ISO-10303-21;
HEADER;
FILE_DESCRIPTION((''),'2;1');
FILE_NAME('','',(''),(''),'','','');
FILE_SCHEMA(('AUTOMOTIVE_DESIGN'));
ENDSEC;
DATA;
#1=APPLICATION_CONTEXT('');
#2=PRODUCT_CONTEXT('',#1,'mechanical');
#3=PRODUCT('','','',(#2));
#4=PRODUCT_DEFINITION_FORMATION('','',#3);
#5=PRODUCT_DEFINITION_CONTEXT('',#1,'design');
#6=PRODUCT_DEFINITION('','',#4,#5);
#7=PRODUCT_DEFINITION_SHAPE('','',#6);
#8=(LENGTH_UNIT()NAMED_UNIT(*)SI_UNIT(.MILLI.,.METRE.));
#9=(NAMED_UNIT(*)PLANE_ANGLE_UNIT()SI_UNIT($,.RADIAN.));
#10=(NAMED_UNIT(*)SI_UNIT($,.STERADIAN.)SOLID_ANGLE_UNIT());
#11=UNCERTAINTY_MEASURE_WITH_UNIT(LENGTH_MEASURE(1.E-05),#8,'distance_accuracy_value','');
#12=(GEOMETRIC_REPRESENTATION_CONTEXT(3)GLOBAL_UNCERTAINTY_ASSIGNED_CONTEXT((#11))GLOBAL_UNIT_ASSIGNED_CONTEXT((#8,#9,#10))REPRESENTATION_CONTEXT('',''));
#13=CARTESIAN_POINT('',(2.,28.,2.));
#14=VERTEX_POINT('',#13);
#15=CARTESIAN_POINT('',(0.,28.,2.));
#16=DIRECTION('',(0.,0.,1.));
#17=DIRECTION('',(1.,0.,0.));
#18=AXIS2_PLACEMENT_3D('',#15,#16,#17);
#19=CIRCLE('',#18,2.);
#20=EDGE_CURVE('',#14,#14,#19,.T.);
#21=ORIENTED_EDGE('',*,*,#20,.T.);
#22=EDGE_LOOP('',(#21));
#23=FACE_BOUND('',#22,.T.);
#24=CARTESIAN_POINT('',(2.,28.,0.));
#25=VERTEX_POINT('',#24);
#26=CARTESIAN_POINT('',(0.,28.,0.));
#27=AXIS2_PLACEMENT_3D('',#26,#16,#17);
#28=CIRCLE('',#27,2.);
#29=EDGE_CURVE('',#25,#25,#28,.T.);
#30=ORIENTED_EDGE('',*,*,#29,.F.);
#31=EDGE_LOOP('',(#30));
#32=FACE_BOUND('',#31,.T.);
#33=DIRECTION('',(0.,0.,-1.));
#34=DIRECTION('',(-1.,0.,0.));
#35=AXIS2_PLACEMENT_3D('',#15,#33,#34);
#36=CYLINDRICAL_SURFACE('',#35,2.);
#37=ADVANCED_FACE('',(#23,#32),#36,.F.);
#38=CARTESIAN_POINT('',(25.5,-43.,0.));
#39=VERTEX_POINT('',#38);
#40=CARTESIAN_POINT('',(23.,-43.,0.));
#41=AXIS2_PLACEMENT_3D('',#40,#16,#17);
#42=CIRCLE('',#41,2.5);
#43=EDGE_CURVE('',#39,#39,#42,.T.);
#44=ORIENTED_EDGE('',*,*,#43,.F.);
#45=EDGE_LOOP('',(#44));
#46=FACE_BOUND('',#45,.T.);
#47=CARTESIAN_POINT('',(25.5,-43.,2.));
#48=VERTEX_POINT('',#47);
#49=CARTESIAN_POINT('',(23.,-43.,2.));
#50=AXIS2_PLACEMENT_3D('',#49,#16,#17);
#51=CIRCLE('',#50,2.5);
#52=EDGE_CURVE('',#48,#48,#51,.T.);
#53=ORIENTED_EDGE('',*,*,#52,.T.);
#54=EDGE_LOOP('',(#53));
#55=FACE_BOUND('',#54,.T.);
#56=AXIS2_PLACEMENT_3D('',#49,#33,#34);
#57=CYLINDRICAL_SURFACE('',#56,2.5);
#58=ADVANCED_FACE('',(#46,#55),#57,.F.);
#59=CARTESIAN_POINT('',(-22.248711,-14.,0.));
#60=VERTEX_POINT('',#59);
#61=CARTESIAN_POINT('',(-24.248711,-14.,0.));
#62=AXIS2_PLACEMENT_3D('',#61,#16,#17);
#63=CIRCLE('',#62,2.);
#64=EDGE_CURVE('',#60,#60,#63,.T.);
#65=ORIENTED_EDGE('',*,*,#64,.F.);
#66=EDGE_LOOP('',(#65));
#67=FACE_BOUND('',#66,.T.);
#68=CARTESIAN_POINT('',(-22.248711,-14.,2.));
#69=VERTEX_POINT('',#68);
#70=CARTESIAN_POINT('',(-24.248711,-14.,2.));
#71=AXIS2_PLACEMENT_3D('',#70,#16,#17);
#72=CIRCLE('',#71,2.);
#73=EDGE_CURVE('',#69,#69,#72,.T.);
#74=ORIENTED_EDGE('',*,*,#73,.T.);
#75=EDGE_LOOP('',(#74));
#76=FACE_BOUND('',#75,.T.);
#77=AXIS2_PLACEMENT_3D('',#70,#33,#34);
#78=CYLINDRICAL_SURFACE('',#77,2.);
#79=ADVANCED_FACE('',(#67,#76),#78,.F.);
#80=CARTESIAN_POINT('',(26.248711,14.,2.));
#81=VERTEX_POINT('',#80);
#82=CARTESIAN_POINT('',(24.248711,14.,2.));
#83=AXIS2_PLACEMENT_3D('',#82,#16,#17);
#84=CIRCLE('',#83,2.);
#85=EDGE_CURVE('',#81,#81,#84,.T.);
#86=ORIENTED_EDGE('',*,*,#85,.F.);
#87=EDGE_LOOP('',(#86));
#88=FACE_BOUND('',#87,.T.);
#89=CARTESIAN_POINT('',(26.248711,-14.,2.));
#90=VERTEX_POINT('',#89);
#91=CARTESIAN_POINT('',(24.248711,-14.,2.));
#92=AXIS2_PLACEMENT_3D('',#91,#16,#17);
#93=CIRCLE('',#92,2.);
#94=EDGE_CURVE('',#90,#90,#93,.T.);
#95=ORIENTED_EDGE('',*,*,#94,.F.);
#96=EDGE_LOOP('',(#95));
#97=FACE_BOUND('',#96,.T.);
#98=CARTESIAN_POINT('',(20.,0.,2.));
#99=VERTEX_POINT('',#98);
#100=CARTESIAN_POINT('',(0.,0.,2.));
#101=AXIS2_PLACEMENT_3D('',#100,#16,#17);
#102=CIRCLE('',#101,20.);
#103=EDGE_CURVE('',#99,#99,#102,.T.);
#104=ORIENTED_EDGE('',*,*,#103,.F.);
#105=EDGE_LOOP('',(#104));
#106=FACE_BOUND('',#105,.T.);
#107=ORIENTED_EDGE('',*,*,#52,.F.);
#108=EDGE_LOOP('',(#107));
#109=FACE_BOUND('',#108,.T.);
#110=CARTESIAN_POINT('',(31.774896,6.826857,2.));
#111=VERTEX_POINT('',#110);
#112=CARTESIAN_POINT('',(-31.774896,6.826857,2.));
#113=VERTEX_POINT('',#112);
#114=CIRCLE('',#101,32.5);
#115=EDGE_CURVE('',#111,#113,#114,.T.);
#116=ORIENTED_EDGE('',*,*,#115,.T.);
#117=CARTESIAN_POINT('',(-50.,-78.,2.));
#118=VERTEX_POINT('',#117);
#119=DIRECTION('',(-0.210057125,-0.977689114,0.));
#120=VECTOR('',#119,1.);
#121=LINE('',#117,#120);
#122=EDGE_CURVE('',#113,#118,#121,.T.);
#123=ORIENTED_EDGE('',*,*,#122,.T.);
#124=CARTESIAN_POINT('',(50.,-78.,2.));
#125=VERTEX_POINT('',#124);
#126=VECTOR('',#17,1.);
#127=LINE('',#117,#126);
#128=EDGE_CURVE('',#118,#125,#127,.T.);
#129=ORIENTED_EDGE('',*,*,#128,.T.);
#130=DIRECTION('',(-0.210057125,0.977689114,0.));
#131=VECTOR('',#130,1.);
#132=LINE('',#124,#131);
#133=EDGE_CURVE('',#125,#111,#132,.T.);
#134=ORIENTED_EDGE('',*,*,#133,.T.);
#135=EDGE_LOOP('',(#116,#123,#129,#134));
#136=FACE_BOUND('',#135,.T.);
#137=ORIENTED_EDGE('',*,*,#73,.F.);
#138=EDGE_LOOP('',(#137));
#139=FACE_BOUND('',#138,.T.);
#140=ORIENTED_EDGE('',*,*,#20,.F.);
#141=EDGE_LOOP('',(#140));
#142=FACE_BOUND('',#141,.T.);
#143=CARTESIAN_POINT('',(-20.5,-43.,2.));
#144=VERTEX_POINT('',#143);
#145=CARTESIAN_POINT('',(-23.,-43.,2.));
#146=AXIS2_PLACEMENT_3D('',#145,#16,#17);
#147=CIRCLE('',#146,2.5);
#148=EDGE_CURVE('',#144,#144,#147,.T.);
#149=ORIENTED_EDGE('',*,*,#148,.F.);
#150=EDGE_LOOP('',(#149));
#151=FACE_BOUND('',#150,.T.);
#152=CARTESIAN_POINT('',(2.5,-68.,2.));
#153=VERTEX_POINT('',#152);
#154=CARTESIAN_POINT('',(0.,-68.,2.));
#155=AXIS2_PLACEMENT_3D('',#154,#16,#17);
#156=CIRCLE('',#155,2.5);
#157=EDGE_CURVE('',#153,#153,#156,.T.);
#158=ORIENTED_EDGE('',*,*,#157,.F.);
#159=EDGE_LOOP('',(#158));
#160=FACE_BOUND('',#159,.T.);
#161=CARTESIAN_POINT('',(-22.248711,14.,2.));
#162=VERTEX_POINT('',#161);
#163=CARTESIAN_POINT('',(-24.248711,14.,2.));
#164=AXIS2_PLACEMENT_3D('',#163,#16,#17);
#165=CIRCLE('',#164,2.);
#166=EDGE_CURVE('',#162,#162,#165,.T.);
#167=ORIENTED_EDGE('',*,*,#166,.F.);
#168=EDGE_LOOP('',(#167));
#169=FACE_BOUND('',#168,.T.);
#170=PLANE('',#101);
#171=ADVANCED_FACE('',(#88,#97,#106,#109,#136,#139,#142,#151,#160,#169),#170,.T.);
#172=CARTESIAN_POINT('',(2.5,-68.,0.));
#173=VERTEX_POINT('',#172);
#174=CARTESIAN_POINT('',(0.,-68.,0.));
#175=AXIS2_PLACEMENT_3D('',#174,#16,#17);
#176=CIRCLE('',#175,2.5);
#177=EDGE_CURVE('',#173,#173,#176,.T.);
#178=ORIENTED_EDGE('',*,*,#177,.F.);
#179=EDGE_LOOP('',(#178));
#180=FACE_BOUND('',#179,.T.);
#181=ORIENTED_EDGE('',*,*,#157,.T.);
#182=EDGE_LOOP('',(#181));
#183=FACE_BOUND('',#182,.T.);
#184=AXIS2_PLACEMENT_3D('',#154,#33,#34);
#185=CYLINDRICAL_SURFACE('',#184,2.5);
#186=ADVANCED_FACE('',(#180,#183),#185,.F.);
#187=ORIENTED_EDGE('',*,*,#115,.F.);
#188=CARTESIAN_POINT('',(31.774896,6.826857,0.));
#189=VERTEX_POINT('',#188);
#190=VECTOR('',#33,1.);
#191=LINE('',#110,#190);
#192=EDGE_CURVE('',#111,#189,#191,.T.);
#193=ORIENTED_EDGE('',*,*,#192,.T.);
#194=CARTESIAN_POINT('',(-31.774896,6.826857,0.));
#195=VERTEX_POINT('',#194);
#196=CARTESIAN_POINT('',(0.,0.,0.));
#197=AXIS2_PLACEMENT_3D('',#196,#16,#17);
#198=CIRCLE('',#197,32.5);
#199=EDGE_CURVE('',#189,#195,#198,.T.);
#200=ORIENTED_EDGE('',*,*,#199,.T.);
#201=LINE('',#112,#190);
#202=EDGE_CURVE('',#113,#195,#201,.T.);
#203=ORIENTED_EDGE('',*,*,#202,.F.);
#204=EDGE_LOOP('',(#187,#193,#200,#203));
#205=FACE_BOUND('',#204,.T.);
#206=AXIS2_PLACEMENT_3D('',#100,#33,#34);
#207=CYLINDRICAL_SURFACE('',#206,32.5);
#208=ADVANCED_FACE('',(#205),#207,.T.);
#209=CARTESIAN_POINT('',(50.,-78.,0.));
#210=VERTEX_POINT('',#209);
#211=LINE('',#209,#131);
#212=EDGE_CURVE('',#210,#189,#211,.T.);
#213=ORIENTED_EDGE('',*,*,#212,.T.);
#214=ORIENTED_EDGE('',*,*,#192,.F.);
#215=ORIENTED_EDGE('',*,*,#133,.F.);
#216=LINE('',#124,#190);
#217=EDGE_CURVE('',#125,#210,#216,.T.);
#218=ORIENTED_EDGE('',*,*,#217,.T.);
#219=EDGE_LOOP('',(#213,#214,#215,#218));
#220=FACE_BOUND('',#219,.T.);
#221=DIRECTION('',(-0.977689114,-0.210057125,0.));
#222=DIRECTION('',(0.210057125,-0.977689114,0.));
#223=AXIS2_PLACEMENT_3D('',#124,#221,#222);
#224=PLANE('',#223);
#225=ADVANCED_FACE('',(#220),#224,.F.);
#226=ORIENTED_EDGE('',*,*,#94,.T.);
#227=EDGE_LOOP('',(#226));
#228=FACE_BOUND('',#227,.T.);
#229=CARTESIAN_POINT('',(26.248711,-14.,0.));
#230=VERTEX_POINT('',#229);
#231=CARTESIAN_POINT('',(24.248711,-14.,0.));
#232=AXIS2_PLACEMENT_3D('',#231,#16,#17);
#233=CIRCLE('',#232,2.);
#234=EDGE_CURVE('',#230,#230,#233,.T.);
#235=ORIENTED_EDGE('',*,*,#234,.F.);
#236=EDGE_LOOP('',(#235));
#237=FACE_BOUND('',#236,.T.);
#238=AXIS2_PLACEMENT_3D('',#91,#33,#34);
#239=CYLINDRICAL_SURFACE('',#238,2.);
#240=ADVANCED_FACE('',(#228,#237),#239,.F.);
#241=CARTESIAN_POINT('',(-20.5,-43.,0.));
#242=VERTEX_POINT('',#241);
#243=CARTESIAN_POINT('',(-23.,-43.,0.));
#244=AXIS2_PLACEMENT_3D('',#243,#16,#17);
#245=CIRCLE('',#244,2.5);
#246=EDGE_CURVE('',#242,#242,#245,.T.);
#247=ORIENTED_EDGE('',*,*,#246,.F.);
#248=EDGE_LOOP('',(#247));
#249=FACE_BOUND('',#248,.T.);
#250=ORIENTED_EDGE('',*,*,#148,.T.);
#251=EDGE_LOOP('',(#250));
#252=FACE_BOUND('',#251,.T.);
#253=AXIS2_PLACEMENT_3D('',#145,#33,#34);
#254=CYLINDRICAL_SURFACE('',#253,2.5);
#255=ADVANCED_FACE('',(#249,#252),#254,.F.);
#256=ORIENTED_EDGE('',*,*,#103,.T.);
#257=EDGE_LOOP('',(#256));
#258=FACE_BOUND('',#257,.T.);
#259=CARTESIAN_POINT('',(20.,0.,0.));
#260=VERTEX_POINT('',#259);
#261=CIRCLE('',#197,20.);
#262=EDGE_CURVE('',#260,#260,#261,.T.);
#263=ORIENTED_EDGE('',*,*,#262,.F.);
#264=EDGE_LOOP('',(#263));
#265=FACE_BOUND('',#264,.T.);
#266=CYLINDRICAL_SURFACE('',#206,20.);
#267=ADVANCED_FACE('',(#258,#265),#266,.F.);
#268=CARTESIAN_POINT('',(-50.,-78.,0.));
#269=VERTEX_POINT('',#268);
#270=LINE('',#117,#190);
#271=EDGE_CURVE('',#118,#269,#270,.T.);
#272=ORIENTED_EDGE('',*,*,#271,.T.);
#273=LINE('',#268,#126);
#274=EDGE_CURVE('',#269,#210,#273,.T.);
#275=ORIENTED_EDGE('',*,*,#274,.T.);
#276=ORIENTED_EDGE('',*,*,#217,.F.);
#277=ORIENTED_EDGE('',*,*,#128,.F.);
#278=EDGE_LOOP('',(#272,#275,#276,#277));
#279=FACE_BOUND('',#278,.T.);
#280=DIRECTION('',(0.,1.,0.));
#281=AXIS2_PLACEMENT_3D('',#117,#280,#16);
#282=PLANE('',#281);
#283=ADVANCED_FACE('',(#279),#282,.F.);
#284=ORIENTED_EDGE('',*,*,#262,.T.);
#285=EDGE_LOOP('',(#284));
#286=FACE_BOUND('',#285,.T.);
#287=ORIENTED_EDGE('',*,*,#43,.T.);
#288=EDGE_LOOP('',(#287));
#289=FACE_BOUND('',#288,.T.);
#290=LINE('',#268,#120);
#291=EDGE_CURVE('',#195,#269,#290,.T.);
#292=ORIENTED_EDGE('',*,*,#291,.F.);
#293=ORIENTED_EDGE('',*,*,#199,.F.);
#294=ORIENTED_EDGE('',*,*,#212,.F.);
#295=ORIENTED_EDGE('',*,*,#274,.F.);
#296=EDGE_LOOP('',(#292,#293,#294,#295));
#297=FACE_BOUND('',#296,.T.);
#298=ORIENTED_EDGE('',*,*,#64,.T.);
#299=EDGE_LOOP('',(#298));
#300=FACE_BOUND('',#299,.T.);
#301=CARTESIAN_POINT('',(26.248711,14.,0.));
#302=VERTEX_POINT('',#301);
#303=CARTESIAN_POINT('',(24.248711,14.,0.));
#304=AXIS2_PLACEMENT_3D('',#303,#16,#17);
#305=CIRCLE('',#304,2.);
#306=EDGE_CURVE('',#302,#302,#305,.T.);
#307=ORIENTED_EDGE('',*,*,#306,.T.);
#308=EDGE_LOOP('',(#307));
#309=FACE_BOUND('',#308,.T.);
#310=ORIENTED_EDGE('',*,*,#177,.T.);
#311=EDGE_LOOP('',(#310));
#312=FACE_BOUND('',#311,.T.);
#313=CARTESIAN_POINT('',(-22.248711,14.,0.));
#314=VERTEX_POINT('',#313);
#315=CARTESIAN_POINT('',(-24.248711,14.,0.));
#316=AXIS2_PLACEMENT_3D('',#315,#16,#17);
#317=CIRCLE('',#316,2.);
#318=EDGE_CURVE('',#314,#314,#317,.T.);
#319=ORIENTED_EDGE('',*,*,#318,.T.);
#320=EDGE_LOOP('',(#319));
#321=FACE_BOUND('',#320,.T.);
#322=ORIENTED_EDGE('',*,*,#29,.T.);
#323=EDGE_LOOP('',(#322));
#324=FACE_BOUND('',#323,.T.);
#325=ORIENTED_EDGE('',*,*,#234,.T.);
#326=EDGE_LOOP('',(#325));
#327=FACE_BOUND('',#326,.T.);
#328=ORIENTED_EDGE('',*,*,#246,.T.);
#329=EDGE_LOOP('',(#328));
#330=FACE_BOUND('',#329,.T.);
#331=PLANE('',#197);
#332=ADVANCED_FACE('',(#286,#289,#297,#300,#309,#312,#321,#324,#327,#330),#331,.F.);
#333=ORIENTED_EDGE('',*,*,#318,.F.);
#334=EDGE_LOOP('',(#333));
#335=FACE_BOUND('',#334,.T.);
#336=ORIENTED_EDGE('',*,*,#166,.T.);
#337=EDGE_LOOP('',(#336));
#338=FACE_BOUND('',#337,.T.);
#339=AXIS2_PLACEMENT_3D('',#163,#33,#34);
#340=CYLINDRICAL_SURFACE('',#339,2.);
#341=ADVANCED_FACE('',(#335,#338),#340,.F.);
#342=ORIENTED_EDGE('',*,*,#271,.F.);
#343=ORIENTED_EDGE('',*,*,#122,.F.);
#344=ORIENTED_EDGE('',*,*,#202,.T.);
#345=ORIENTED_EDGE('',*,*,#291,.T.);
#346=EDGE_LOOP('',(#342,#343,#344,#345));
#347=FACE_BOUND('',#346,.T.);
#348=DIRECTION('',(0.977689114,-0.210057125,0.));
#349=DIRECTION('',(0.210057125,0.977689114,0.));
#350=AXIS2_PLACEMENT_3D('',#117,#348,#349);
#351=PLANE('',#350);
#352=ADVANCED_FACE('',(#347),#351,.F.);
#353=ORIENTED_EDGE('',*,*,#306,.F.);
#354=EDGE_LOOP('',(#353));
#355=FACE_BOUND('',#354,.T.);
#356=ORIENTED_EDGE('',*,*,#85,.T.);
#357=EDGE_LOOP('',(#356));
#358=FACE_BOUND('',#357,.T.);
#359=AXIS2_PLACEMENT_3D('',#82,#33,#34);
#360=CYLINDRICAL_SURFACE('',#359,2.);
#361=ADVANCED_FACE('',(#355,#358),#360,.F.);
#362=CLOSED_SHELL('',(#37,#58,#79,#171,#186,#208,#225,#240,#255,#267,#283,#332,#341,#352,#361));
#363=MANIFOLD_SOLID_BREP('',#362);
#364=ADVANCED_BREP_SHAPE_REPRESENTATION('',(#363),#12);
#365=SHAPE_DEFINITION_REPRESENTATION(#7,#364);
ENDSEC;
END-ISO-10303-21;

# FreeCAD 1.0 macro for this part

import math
import FreeCAD as App
import Part
import Sketcher

doc = App.newDocument("Part")
body = doc.addObject("PartDesign::Body", "Body")

sketch1 = doc.addObject("Sketcher::SketchObject", "Sketch")
body.addObject(sketch1)
sketch1.AttachmentSupport = (doc.XY_Plane, [""])
sketch1.MapMode = "FlatFace"
sketch1.addGeometry([
    Part.LineSegment(App.Vector(-50, -78, 0), App.Vector(50, -78, 0)),
    Part.LineSegment(App.Vector(50, -78, 0), App.Vector(31.774896, 6.826857, 0)),
    Part.ArcOfCircle(Part.Circle(App.Vector(0, 0, 0), App.Vector(0, 0, 1), 32.5), math.radians(12.1257), math.radians(167.8743)),
    Part.LineSegment(App.Vector(-31.774896, 6.826857, 0), App.Vector(-50, -78, 0)),
    Part.Circle(App.Vector(-23, -43, 0), App.Vector(0, 0, 1), 2.5),
    Part.Circle(App.Vector(0, -68, 0), App.Vector(0, 0, 1), 2.5),
    Part.Circle(App.Vector(23, -43, 0), App.Vector(0, 0, 1), 2.5),
    Part.Circle(App.Vector(-24.248711, -14, 0), App.Vector(0, 0, 1), 2),
    Part.Circle(App.Vector(-24.248711, 14, 0), App.Vector(0, 0, 1), 2),
    Part.Circle(App.Vector(0, 0, 0), App.Vector(0, 0, 1), 20),
    Part.Circle(App.Vector(24.248711, -14, 0), App.Vector(0, 0, 1), 2),
    Part.Circle(App.Vector(0, 28, 0), App.Vector(0, 0, 1), 2),
    Part.Circle(App.Vector(24.248711, 14, 0), App.Vector(0, 0, 1), 2),
], False)
sketch1.addConstraint([
    Sketcher.Constraint("Coincident", 0, 2, 1, 1),
    Sketcher.Constraint("Tangent", 1, 2, 2, 1),
    Sketcher.Constraint("Tangent", 2, 2, 3, 1),
    Sketcher.Constraint("Coincident", 3, 2, 0, 1),
    Sketcher.Constraint("Horizontal", 0),
    Sketcher.Constraint("Coincident", 2, 3, -1, 1),
    Sketcher.Constraint("Coincident", 9, 3, -1, 1),
    Sketcher.Constraint("Equal", 4, 5),
    Sketcher.Constraint("Equal", 5, 6),
    Sketcher.Constraint("Equal", 7, 8),
    Sketcher.Constraint("Equal", 8, 10),
    Sketcher.Constraint("Equal", 10, 11),
    Sketcher.Constraint("Equal", 11, 12),
    Sketcher.Constraint("Symmetric", 8, 3, 10, 3, -1, 1),
    Sketcher.Constraint("Symmetric", 7, 3, 12, 3, -1, 1),
    Sketcher.Constraint("Symmetric", 4, 3, 6, 3, -2),
    Sketcher.Constraint("Symmetric", 7, 3, 10, 3, -2),
    Sketcher.Constraint("PointOnObject", 5, 3, -2),
    Sketcher.Constraint("PointOnObject", 11, 3, -2),
    Sketcher.Constraint("Horizontal", 1, 2, 2, 2),
    Sketcher.Constraint("Diameter", 4, 5.0),
    Sketcher.Constraint("Diameter", 7, 4.0),
    Sketcher.Constraint("Diameter", 9, 40.0),
    Sketcher.Constraint("Radius", 2, 32.5),
    Sketcher.Constraint("DistanceX", 0, 1, 0, 2, 100.0),
    Sketcher.Constraint("DistanceX", 4, 3, -1, 1, 23.0),
    Sketcher.Constraint("DistanceY", 4, 3, -1, 1, 43.0),
    Sketcher.Constraint("DistanceY", 5, 3, -1, 1, 68.0),
    Sketcher.Constraint("DistanceY", 7, 3, -1, 1, 14.0),
    Sketcher.Constraint("DistanceY", -1, 1, 11, 3, 28.0),
    Sketcher.Constraint("DistanceY", 0, 2, -1, 1, 78.0),
    Sketcher.Constraint("DistanceX", 7, 3, -1, 1, 24.248711),
])
pad1 = doc.addObject("PartDesign::Pad", "Pad")
body.addObject(pad1)
pad1.Profile = sketch1
pad1.Length = 2

doc.recompute()
